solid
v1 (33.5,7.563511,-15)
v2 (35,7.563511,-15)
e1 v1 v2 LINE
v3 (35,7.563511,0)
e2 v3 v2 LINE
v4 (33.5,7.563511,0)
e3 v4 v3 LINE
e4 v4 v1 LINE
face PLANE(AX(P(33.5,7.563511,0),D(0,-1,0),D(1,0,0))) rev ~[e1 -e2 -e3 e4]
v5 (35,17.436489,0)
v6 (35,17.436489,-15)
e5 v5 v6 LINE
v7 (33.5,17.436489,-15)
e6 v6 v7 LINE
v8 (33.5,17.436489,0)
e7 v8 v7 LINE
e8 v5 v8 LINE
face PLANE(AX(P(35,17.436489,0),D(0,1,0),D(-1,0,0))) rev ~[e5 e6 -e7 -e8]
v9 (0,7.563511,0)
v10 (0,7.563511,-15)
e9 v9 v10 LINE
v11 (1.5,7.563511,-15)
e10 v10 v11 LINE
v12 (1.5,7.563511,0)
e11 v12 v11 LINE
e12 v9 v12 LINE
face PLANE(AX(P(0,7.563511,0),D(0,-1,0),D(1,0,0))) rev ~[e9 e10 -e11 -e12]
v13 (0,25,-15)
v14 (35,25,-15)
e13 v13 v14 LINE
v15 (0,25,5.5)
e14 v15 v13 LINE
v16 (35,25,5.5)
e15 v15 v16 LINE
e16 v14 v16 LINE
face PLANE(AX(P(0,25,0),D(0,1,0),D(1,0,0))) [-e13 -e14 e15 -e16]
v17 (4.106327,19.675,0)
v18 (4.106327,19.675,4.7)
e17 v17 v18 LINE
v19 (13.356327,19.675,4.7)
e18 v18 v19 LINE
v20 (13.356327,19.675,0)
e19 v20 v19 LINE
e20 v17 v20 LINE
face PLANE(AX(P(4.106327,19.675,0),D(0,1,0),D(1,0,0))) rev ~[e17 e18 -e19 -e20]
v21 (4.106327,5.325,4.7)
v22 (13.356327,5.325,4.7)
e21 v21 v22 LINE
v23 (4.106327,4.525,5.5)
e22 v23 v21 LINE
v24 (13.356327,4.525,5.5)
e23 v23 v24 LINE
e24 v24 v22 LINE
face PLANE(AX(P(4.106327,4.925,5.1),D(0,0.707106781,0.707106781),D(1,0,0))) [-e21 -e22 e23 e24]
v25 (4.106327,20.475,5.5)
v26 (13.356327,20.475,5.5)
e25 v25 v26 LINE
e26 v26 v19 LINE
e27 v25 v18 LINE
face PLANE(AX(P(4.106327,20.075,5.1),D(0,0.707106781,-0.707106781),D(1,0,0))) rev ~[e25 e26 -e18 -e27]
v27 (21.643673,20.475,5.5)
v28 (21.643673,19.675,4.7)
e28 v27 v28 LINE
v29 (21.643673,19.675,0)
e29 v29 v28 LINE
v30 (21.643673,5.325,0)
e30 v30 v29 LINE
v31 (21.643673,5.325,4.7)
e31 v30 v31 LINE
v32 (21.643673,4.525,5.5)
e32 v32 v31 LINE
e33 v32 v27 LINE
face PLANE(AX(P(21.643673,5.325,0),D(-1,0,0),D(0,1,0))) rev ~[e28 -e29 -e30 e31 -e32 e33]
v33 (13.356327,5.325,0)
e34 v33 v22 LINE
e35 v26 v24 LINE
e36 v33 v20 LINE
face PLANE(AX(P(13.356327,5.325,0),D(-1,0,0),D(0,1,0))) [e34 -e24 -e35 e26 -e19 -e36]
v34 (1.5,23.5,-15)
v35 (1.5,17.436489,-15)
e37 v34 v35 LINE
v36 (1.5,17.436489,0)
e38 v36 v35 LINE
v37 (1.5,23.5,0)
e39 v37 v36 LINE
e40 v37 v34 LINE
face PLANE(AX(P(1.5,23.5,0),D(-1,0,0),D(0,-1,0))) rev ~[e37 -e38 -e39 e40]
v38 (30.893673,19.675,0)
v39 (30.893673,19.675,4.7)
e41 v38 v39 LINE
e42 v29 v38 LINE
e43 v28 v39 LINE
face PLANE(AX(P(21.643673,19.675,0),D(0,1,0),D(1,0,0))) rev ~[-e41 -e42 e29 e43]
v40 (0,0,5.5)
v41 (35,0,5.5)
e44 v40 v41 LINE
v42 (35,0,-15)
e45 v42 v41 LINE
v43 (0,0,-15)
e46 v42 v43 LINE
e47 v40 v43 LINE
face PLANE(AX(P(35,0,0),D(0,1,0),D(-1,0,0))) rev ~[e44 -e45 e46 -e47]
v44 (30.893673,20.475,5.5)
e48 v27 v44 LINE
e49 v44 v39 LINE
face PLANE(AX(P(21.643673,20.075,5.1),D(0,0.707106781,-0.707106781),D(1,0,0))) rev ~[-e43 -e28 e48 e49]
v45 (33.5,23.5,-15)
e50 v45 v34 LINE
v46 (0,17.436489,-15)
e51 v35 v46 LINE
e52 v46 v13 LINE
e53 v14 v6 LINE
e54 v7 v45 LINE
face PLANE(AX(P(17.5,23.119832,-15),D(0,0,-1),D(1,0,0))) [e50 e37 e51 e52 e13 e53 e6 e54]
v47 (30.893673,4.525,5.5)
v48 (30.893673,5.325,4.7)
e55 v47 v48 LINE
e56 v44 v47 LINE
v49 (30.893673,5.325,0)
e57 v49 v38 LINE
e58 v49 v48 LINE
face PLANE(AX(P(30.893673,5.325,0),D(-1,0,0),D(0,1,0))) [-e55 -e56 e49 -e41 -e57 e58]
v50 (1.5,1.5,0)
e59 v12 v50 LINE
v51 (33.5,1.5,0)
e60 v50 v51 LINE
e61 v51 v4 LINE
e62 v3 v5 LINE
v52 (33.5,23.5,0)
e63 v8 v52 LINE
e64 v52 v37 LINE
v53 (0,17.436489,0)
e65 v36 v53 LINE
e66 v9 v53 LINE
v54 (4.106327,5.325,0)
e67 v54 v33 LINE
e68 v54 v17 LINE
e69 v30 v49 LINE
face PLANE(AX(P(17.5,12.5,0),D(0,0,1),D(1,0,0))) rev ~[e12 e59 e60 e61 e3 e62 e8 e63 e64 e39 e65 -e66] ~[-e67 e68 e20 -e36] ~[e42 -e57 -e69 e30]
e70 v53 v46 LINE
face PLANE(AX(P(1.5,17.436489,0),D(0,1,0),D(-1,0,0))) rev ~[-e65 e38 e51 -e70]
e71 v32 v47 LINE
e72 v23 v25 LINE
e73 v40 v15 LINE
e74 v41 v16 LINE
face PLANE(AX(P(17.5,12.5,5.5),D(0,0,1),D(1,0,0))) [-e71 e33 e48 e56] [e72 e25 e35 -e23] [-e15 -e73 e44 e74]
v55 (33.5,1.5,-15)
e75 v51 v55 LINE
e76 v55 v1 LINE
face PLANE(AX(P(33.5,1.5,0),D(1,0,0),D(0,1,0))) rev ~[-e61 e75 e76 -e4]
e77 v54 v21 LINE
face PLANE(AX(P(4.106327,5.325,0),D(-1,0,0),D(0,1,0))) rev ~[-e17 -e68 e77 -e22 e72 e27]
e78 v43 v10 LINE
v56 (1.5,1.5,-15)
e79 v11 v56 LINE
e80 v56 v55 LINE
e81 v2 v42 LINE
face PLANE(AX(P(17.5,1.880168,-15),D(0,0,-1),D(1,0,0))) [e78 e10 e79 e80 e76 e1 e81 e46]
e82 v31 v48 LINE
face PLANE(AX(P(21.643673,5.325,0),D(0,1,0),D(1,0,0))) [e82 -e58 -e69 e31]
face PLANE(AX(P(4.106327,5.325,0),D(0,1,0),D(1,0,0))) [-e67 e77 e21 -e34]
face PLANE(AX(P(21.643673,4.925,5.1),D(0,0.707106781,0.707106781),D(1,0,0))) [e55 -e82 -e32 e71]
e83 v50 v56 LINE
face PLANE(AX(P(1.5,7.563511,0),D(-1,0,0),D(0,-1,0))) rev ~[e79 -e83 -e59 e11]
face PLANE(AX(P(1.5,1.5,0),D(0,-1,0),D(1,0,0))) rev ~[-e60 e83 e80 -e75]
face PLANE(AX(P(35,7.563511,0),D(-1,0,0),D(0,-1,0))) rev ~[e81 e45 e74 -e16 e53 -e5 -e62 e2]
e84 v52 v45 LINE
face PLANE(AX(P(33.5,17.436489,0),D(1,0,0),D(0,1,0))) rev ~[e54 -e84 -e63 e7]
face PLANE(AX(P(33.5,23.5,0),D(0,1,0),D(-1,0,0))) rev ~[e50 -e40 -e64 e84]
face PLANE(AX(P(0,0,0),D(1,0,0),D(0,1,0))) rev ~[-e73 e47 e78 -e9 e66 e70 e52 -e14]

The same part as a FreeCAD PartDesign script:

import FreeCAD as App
import Part
import Sketcher

V = App.Vector


def edges_at(feature, points):
    """Names of the edges that pass closest to the given points."""
    edges = feature.Shape.Edges
    near = lambda p: min(range(len(edges)), key=lambda i: edges[i].distToShape(Part.Vertex(*p))[0])
    return sorted({f"Edge{near(p) + 1}" for p in points})


def add_polygon(sketch, points):
    """Adds a closed chain of lines whose ends are joined by coincident constraints."""
    first, n = sketch.GeometryCount, len(points)
    for a, b in zip(points, points[1:] + points[:1]):
        sketch.addGeometry(Part.LineSegment(App.Vector(*a, 0), App.Vector(*b, 0)), False)
    for i in range(n):
        sketch.addConstraint(Sketcher.Constraint("Coincident", first + i, 2, first + (i + 1) % n, 1))

doc = App.newDocument("Part")
body = doc.addObject("PartDesign::Body", "Body")

sketch1 = body.newObject("Sketcher::SketchObject", "Sketch")
sketch1.AttachmentSupport = (doc.getObject("XY_Plane"), [""])
sketch1.MapMode = "FlatFace"
add_polygon(sketch1, [(0, 25), (0, 0), (35, 0), (35, 25)])
add_polygon(sketch1, [(13, 5), (4, 5), (4, 20), (13, 20)])
add_polygon(sketch1, [(31, 5), (22, 5), (22, 20), (31, 20)])
sketch1.addConstraint(Sketcher.Constraint("Vertical", 0))
sketch1.addConstraint(Sketcher.Constraint("Horizontal", 1))
sketch1.addConstraint(Sketcher.Constraint("Vertical", 2))
sketch1.addConstraint(Sketcher.Constraint("Horizontal", 3))
sketch1.addConstraint(Sketcher.Constraint("Horizontal", 4))
sketch1.addConstraint(Sketcher.Constraint("Vertical", 5))
sketch1.addConstraint(Sketcher.Constraint("Horizontal", 6))
sketch1.addConstraint(Sketcher.Constraint("Vertical", 7))
sketch1.addConstraint(Sketcher.Constraint("Horizontal", 8))
sketch1.addConstraint(Sketcher.Constraint("Vertical", 9))
sketch1.addConstraint(Sketcher.Constraint("Horizontal", 10))
sketch1.addConstraint(Sketcher.Constraint("Vertical", 11))
sketch1.addConstraint(Sketcher.Constraint("Coincident", 0, 2, -1, 1))
sketch1.addConstraint(Sketcher.Constraint("Horizontal", 7, 2, 8, 2))
sketch1.addConstraint(Sketcher.Constraint("Horizontal", 6, 2, 9, 2))
sketch1.addConstraint(Sketcher.Constraint("Equal", 6, 8))
sketch1.addConstraint(Sketcher.Constraint("DistanceX", 1, 1, 1, 2, 35.0))
sketch1.addConstraint(Sketcher.Constraint("DistanceY", 0, 2, 0, 1, 25.0))
sketch1.addConstraint(Sketcher.Constraint("DistanceX", 4, 2, 4, 1, 9.25))
sketch1.addConstraint(Sketcher.Constraint("DistanceY", 5, 1, 5, 2, 14.35))
sketch1.addConstraint(Sketcher.Constraint("DistanceY", -1, 1, 4, 2, 5.325))
sketch1.addConstraint(Sketcher.Constraint("DistanceX", -1, 1, 4, 2, 4.106327))
sketch1.addConstraint(Sketcher.Constraint("DistanceX", -1, 1, 8, 2, 21.643673))
pad1 = body.newObject("PartDesign::Pad", "Pad")
pad1.Profile = sketch1
pad1.Length = 5.5

sketch2 = body.newObject("Sketcher::SketchObject", "Sketch001")
sketch2.AttachmentSupport = (doc.getObject("XY_Plane"), [""])
sketch2.MapMode = "FlatFace"
add_polygon(sketch2, [(35, 0), (0, 0), (0, 7.6), (1.5, 7.6), (1.5, 1.5), (33.5, 1.5), (33.5, 7.6), (35, 7.6)])
add_polygon(sketch2, [(1.5, 17.4), (0, 17.4), (0, 25), (35, 25), (35, 17.4), (33.5, 17.4), (33.5, 23.5), (1.5, 23.5)])
sketch2.addConstraint(Sketcher.Constraint("Horizontal", 0))
sketch2.addConstraint(Sketcher.Constraint("Vertical", 1))
sketch2.addConstraint(Sketcher.Constraint("Horizontal", 2))
sketch2.addConstraint(Sketcher.Constraint("Vertical", 3))
sketch2.addConstraint(Sketcher.Constraint("Horizontal", 4))
sketch2.addConstraint(Sketcher.Constraint("Vertical", 5))
sketch2.addConstraint(Sketcher.Constraint("Horizontal", 6))
sketch2.addConstraint(Sketcher.Constraint("Vertical", 7))
sketch2.addConstraint(Sketcher.Constraint("Horizontal", 8))
sketch2.addConstraint(Sketcher.Constraint("Vertical", 9))
sketch2.addConstraint(Sketcher.Constraint("Horizontal", 10))
sketch2.addConstraint(Sketcher.Constraint("Vertical", 11))
sketch2.addConstraint(Sketcher.Constraint("Horizontal", 12))
sketch2.addConstraint(Sketcher.Constraint("Vertical", 13))
sketch2.addConstraint(Sketcher.Constraint("Horizontal", 14))
sketch2.addConstraint(Sketcher.Constraint("Vertical", 15))
sketch2.addConstraint(Sketcher.Constraint("Coincident", 0, 2, -1, 1))
sketch2.addConstraint(Sketcher.Constraint("PointOnObject", 8, 2, -2))
sketch2.addConstraint(Sketcher.Constraint("Horizontal", 2, 2, 5, 2))
sketch2.addConstraint(Sketcher.Constraint("Horizontal", 8, 2, 11, 2))
sketch2.addConstraint(Sketcher.Constraint("Vertical", 7, 2, 10, 2))
sketch2.addConstraint(Sketcher.Constraint("Vertical", 5, 2, 12, 2))
sketch2.addConstraint(Sketcher.Constraint("Vertical", 3, 2, 14, 2))
sketch2.addConstraint(Sketcher.Constraint("Equal", 2, 6))
sketch2.addConstraint(Sketcher.Constraint("Equal", 7, 9))
sketch2.addConstraint(Sketcher.Constraint("Equal", 5, 13))
sketch2.addConstraint(Sketcher.Constraint("DistanceX", 0, 2, 0, 1, 35.0))
sketch2.addConstraint(Sketcher.Constraint("DistanceX", 4, 1, 4, 2, 32.0))
sketch2.addConstraint(Sketcher.Constraint("DistanceY", -1, 1, 9, 2, 25.0))
sketch2.addConstraint(Sketcher.Constraint("DistanceY", 3, 2, 14, 2, 22.0))
sketch2.addConstraint(Sketcher.Constraint("DistanceY", 1, 1, 1, 2, 7.563511))
pad2 = body.newObject("PartDesign::Pad", "Pad001")
pad2.Profile = sketch2
pad2.Length = 15
pad2.Reversed = True
doc.recompute()

chamfer = body.newObject("PartDesign::Chamfer", "Chamfer")
chamfer.Base = (pad2, edges_at(pad2, [
    (8.731, 19.675, 5.5),
    (8.731, 5.325, 5.5),
    (26.269, 19.675, 5.5),
    (26.269, 5.325, 5.5),
]))
chamfer.Size = 0.8

doc.recompute()
